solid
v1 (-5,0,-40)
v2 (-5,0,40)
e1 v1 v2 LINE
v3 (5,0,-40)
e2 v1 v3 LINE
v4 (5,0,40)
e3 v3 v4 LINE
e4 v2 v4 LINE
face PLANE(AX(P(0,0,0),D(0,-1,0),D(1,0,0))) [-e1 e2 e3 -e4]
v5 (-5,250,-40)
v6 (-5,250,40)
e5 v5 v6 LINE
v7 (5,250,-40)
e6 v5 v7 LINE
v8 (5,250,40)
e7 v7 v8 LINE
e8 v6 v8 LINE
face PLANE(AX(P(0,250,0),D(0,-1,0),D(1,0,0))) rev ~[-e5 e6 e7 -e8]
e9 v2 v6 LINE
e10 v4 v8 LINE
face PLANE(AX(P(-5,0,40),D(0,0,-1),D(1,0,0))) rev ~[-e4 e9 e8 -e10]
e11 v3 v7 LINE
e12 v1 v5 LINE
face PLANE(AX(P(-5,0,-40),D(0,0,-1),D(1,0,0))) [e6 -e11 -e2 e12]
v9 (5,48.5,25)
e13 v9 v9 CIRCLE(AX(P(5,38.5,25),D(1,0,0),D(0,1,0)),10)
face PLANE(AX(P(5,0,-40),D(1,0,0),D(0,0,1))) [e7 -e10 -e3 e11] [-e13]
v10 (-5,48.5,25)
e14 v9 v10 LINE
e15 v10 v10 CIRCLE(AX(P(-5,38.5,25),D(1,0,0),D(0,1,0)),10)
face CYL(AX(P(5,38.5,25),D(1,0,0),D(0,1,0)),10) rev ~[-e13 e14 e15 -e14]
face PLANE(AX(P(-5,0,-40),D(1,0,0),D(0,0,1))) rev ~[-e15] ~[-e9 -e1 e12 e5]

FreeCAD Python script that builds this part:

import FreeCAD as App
import Part
import Sketcher

V = App.Vector
Q = App.Units.Quantity


def add_polygon(sketch, points):
    """Adds a closed chain of lines whose ends are joined by coincident constraints."""
    first, n = sketch.GeometryCount, len(points)
    for a, b in zip(points, points[1:] + points[:1]):
        sketch.addGeometry(Part.LineSegment(App.Vector(*a, 0), App.Vector(*b, 0)), False)
    for i in range(n):
        sketch.addConstraint(Sketcher.Constraint("Coincident", first + i, 2, first + (i + 1) % n, 1))

doc = App.newDocument("Part")
body = doc.addObject("PartDesign::Body", "Body")

sketch1 = body.newObject("Sketcher::SketchObject", "Sketch")
sketch1.AttachmentSupport = (doc.getObject("XZ_Plane"), [""])
sketch1.MapMode = "FlatFace"
add_polygon(sketch1, [(-5, 40), (-5, -40), (5, -40), (5, 40)])
sketch1.addConstraint([
    Sketcher.Constraint("Vertical", 0),
    Sketcher.Constraint("Horizontal", 1),
    Sketcher.Constraint("Vertical", 2),
    Sketcher.Constraint("Horizontal", 3),
    Sketcher.Constraint("Symmetric", 0, 2, 2, 2, -1, 1),
    Sketcher.Constraint("DistanceX", 1, 1, 1, 2, Q("10 mm")),
    Sketcher.Constraint("DistanceY", 0, 2, 0, 1, Q("80 mm")),
])
pad1 = body.newObject("PartDesign::Pad", "Pad")
pad1.Profile = sketch1
pad1.Length = 250
pad1.Reversed = True

sketch2 = body.newObject("Sketcher::SketchObject", "Sketch001")
sketch2.AttachmentSupport = (doc.getObject("YZ_Plane"), [""])
sketch2.MapMode = "FlatFace"
sketch2.AttachmentOffset = App.Placement(V(0, 0, 5), App.Rotation())
sketch2.addGeometry(Part.Circle(V(38, 25, 0), V(0, 0, 1), 10), False)
sketch2.addConstraint([
    Sketcher.Constraint("Diameter", 0, Q("20 mm")),
    Sketcher.Constraint("DistanceY", -1, 1, 0, 3, Q("25 mm")),
    Sketcher.Constraint("DistanceX", -1, 1, 0, 3, Q("38.5 mm")),
])
pocket1 = body.newObject("PartDesign::Pocket", "Pocket")
pocket1.Profile = sketch2
pocket1.Type = "ThroughAll"

doc.recompute()
